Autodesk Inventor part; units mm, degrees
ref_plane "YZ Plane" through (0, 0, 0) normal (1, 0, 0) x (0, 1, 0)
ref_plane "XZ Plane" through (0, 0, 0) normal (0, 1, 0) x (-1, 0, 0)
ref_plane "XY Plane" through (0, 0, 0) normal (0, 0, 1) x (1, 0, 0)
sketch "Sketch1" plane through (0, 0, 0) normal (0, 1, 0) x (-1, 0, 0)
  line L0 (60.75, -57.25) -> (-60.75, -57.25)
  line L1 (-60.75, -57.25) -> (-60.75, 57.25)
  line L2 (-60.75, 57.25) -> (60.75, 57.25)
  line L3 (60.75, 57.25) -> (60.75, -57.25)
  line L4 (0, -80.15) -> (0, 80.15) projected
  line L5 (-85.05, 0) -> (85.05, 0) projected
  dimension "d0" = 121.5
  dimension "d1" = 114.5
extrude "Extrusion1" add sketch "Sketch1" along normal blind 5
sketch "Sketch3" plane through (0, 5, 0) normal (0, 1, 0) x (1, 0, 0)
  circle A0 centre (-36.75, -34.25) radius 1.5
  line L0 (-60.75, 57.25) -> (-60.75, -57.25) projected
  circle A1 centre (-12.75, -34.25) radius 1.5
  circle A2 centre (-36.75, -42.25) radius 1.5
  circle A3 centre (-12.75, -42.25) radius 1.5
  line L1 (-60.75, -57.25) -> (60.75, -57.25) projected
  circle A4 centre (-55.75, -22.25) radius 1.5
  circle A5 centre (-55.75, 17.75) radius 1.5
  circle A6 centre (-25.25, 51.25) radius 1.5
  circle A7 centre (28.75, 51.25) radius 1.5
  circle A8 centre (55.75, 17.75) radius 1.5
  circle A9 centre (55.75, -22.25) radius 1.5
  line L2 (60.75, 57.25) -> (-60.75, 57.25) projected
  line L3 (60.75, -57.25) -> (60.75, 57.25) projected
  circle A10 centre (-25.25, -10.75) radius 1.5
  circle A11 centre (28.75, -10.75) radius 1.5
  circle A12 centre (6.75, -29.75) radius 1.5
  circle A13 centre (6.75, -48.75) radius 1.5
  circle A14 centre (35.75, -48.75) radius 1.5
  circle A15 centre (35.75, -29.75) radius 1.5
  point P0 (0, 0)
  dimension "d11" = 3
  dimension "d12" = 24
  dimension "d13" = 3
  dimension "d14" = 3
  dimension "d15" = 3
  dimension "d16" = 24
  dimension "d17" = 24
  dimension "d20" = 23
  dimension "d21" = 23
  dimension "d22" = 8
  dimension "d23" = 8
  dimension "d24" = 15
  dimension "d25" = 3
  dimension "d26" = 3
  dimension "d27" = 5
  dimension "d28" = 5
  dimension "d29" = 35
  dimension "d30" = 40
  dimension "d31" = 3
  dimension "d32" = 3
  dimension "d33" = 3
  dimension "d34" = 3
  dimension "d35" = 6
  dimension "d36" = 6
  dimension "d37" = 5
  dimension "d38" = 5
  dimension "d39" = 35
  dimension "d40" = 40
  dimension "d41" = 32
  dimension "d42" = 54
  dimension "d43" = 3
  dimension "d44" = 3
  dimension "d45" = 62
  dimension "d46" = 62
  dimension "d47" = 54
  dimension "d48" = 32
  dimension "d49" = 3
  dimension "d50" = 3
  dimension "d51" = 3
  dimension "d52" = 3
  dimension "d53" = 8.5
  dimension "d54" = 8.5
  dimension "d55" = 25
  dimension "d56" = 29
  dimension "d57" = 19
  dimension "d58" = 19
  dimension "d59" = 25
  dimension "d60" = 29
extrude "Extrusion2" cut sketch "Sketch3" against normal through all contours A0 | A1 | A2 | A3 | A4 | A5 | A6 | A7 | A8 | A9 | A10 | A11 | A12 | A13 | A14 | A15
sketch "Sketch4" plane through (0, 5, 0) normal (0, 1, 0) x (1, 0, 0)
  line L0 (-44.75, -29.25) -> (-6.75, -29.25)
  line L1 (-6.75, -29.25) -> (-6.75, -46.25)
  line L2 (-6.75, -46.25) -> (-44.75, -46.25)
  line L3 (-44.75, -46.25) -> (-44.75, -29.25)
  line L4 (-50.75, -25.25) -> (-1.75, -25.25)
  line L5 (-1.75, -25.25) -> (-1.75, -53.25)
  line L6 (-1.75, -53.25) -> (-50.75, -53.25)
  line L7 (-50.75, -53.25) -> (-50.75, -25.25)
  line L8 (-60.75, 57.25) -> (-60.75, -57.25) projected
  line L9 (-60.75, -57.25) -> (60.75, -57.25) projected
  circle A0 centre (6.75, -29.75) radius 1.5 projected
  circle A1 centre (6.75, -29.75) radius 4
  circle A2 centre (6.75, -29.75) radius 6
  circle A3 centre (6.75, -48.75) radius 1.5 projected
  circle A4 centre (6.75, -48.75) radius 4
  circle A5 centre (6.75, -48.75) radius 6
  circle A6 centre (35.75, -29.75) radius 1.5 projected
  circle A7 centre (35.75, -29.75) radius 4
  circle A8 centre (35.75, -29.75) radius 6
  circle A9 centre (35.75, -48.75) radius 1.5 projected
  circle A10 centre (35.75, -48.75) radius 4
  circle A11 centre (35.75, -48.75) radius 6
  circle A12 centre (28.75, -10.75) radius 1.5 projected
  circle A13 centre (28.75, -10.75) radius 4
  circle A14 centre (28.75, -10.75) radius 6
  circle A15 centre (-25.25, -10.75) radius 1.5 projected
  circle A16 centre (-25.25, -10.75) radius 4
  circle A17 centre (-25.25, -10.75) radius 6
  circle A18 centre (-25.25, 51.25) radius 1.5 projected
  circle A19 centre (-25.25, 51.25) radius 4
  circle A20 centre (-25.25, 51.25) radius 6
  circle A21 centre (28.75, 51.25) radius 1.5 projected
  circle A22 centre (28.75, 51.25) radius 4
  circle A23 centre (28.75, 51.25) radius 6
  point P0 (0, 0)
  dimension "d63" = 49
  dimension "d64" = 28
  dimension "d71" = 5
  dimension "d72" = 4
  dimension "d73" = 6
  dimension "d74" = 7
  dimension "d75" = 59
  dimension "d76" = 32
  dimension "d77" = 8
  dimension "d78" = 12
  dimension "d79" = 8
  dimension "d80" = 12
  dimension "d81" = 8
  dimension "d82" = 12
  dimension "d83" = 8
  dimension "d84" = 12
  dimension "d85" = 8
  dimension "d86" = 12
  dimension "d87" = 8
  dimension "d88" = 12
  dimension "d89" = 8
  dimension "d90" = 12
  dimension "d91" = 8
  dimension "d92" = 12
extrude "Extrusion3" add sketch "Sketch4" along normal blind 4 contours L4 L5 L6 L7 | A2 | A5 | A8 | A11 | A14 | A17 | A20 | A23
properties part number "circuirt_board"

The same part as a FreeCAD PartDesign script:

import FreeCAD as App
import Part
import Sketcher
from FreeCAD import Vector

doc = App.newDocument("Part")
body = doc.addObject("PartDesign::Body", "Body")

# Sketch on XZ plane
sketch1 = doc.addObject("Sketcher::SketchObject", "Sketch")
body.addObject(sketch1)
sketch1.AttachmentSupport = (doc.XZ_Plane, [""])
sketch1.MapMode = "FlatFace"
sketch1.addGeometry([
    Part.LineSegment(Vector(-60.75, -57.25, 0), Vector(-60.75, 57.25, 0)),
    Part.LineSegment(Vector(-60.75, 57.25, 0), Vector(60.75, 57.25, 0)),
    Part.LineSegment(Vector(60.75, 57.25, 0), Vector(60.75, -57.25, 0)),
    Part.LineSegment(Vector(60.75, -57.25, 0), Vector(-60.75, -57.25, 0)),
], False)
sketch1.addConstraint([
    Sketcher.Constraint("Coincident", 0, 2, 1, 1),
    Sketcher.Constraint("Coincident", 1, 2, 2, 1),
    Sketcher.Constraint("Coincident", 2, 2, 3, 1),
    Sketcher.Constraint("Coincident", 3, 2, 0, 1),
    Sketcher.Constraint("Vertical", 0),
    Sketcher.Constraint("Horizontal", 1),
    Sketcher.Constraint("Vertical", 2),
    Sketcher.Constraint("Horizontal", 3),
    Sketcher.Constraint("Symmetric", 0, 2, 2, 2, -1, 1),
    Sketcher.Constraint("DistanceX", 1, 1, 1, 2, 121.5),
    Sketcher.Constraint("DistanceY", 0, 1, 0, 2, 114.5),
])
pad1 = doc.addObject("PartDesign::Pad", "Pad")
body.addObject(pad1)
pad1.Profile = sketch1
pad1.Length = 5
pad1.Reversed = True

# Sketch on XZ plane
sketch2 = doc.addObject("Sketcher::SketchObject", "Sketch001")
body.addObject(sketch2)
sketch2.AttachmentSupport = (doc.XZ_Plane, [""])
sketch2.MapMode = "FlatFace"
sketch2.AttachmentOffset = App.Placement(Vector(0, 0, -5), App.Rotation())
sketch2.addGeometry([
    Part.Circle(Vector(-36.75, 34.25, 0), Vector(0, 0, 1), 1.5),  # 0
    Part.Circle(Vector(-12.75, 34.25, 0), Vector(0, 0, 1), 1.5),  # 1
    Part.Circle(Vector(-36.75, 42.25, 0), Vector(0, 0, 1), 1.5),  # 2
    Part.Circle(Vector(-12.75, 42.25, 0), Vector(0, 0, 1), 1.5),  # 3
    Part.Circle(Vector(-55.75, 22.25, 0), Vector(0, 0, 1), 1.5),  # 4
    Part.Circle(Vector(-55.75, -17.75, 0), Vector(0, 0, 1), 1.5),  # 5
    Part.Circle(Vector(-25.25, -51.25, 0), Vector(0, 0, 1), 1.5),  # 6
    Part.Circle(Vector(28.75, -51.25, 0), Vector(0, 0, 1), 1.5),  # 7
    Part.Circle(Vector(55.75, -17.75, 0), Vector(0, 0, 1), 1.5),  # 8
    Part.Circle(Vector(55.75, 22.25, 0), Vector(0, 0, 1), 1.5),  # 9
    Part.Circle(Vector(-25.25, 10.75, 0), Vector(0, 0, 1), 1.5),  # 10
    Part.Circle(Vector(28.75, 10.75, 0), Vector(0, 0, 1), 1.5),  # 11
    Part.Circle(Vector(6.75, 29.75, 0), Vector(0, 0, 1), 1.5),  # 12
    Part.Circle(Vector(6.75, 48.75, 0), Vector(0, 0, 1), 1.5),  # 13
    Part.Circle(Vector(35.75, 48.75, 0), Vector(0, 0, 1), 1.5),  # 14
    Part.Circle(Vector(35.75, 29.75, 0), Vector(0, 0, 1), 1.5),  # 15
], False)
sketch2.addConstraint([
    Sketcher.Constraint("Equal", 0, 1),
    Sketcher.Constraint("Equal", 1, 2),
    Sketcher.Constraint("Equal", 2, 3),
    Sketcher.Constraint("Equal", 3, 4),
    Sketcher.Constraint("Equal", 4, 5),
    Sketcher.Constraint("Equal", 5, 6),
    Sketcher.Constraint("Equal", 6, 7),
    Sketcher.Constraint("Equal", 7, 8),
    Sketcher.Constraint("Equal", 8, 9),
    Sketcher.Constraint("Equal", 9, 10),
    Sketcher.Constraint("Equal", 10, 11),
    Sketcher.Constraint("Equal", 11, 12),
    Sketcher.Constraint("Equal", 12, 13),
    Sketcher.Constraint("Equal", 13, 14),
    Sketcher.Constraint("Equal", 14, 15),
    Sketcher.Constraint("Symmetric", 5, 3, 8, 3, -2),
    Sketcher.Constraint("Symmetric", 4, 3, 9, 3, -2),
    Sketcher.Constraint("Horizontal", 0, 3, 1, 3),
    Sketcher.Constraint("Horizontal", 2, 3, 3, 3),
    Sketcher.Constraint("Horizontal", 6, 3, 7, 3),
    Sketcher.Constraint("Horizontal", 10, 3, 11, 3),
    Sketcher.Constraint("Horizontal", 13, 3, 14, 3),
    Sketcher.Constraint("Horizontal", 12, 3, 15, 3),
    Sketcher.Constraint("Vertical", 0, 3, 2, 3),
    Sketcher.Constraint("Vertical", 1, 3, 3, 3),
    Sketcher.Constraint("Vertical", 4, 3, 5, 3),
    Sketcher.Constraint("Vertical", 6, 3, 10, 3),
    Sketcher.Constraint("Vertical", 7, 3, 11, 3),
    Sketcher.Constraint("Vertical", 12, 3, 13, 3),
    Sketcher.Constraint("Vertical", 14, 3, 15, 3),
    Sketcher.Constraint("Diameter", 0, 3.0),
    Sketcher.Constraint("DistanceX", 0, 3, 1, 3, 24.0),
    Sketcher.Constraint("DistanceY", 0, 3, 2, 3, 8.0),
    Sketcher.Constraint("DistanceX", 4, 3, 0, 3, 19.0),
    Sketcher.Constraint("DistanceY", 5, 3, 4, 3, 40.0),
    Sketcher.Constraint("DistanceX", 6, 3, 7, 3, 54.0),
    Sketcher.Constraint("DistanceY", 11, 3, 12, 3, 19.0),
    Sketcher.Constraint("DistanceX", 10, 3, 12, 3, 32.0),
    Sketcher.Constraint("DistanceY", 12, 3, 13, 3, 19.0),
    Sketcher.Constraint("DistanceX", 13, 3, 14, 3, 29.0),
    Sketcher.Constraint("DistanceY", 4, 3, 0, 3, 12.0),
    Sketcher.Constraint("DistanceX", 7, 3, 8, 3, 27.0),
    Sketcher.Constraint("DistanceX", 5, 3, 6, 3, 30.5),
    Sketcher.Constraint("DistanceY", 6, 3, 5, 3, 33.5),
    Sketcher.Constraint("DistanceY", 10, 3, 0, 3, 23.5),
    Sketcher.Constraint("DistanceY", -1, 1, 0, 3, 34.25),
])
pocket1 = doc.addObject("PartDesign::Pocket", "Pocket")
body.addObject(pocket1)
pocket1.Profile = sketch2
pocket1.Type = "ThroughAll"
pocket1.Reversed = True

# Sketch on XZ plane
sketch3 = doc.addObject("Sketcher::SketchObject", "Sketch002")
body.addObject(sketch3)
sketch3.AttachmentSupport = (doc.XZ_Plane, [""])
sketch3.MapMode = "FlatFace"
sketch3.AttachmentOffset = App.Placement(Vector(0, 0, -5), App.Rotation())
sketch3.addGeometry([
    Part.LineSegment(Vector(-1.75, 25.25, 0), Vector(-50.75, 25.25, 0)),  # 0
    Part.LineSegment(Vector(-50.75, 25.25, 0), Vector(-50.75, 53.25, 0)),  # 1
    Part.LineSegment(Vector(-50.75, 53.25, 0), Vector(-1.75, 53.25, 0)),  # 2
    Part.LineSegment(Vector(-1.75, 53.25, 0), Vector(-1.75, 25.25, 0)),  # 3
    Part.LineSegment(Vector(-44.75, 46.25, 0), Vector(-44.75, 29.25, 0)),  # 4
    Part.LineSegment(Vector(-44.75, 29.25, 0), Vector(-6.75, 29.25, 0)),  # 5
    Part.LineSegment(Vector(-6.75, 29.25, 0), Vector(-6.75, 46.25, 0)),  # 6
    Part.LineSegment(Vector(-6.75, 46.25, 0), Vector(-44.75, 46.25, 0)),  # 7
    Part.Circle(Vector(6.75, 29.75, 0), Vector(0, 0, 1), 6),  # 8
    Part.Circle(Vector(6.75, 29.75, 0), Vector(0, 0, 1), 4),  # 9
    Part.Circle(Vector(6.75, 48.75, 0), Vector(0, 0, 1), 6),  # 10
    Part.Circle(Vector(6.75, 48.75, 0), Vector(0, 0, 1), 4),  # 11
    Part.Circle(Vector(35.75, 29.75, 0), Vector(0, 0, 1), 6),  # 12
    Part.Circle(Vector(35.75, 29.75, 0), Vector(0, 0, 1), 4),  # 13
    Part.Circle(Vector(35.75, 48.75, 0), Vector(0, 0, 1), 6),  # 14
    Part.Circle(Vector(35.75, 48.75, 0), Vector(0, 0, 1), 4),  # 15
    Part.Circle(Vector(28.75, 10.75, 0), Vector(0, 0, 1), 6),  # 16
    Part.Circle(Vector(28.75, 10.75, 0), Vector(0, 0, 1), 4),  # 17
    Part.Circle(Vector(-25.25, 10.75, 0), Vector(0, 0, 1), 6),  # 18
    Part.Circle(Vector(-25.25, 10.75, 0), Vector(0, 0, 1), 4),  # 19
    Part.Circle(Vector(-25.25, -51.25, 0), Vector(0, 0, 1), 6),  # 20
    Part.Circle(Vector(-25.25, -51.25, 0), Vector(0, 0, 1), 4),  # 21
    Part.Circle(Vector(28.75, -51.25, 0), Vector(0, 0, 1), 6),  # 22
    Part.Circle(Vector(28.75, -51.25, 0), Vector(0, 0, 1), 4),  # 23
], False)
sketch3.addConstraint([
    Sketcher.Constraint("Coincident", 0, 2, 1, 1),
    Sketcher.Constraint("Coincident", 1, 2, 2, 1),
    Sketcher.Constraint("Coincident", 2, 2, 3, 1),
    Sketcher.Constraint("Coincident", 3, 2, 0, 1),
    Sketcher.Constraint("Coincident", 4, 2, 5, 1),
    Sketcher.Constraint("Coincident", 5, 2, 6, 1),
    Sketcher.Constraint("Coincident", 6, 2, 7, 1),
    Sketcher.Constraint("Coincident", 7, 2, 4, 1),
    Sketcher.Constraint("Horizontal", 0),
    Sketcher.Constraint("Vertical", 1),
    Sketcher.Constraint("Horizontal", 2),
    Sketcher.Constraint("Vertical", 3),
    Sketcher.Constraint("Vertical", 4),
    Sketcher.Constraint("Horizontal", 5),
    Sketcher.Constraint("Vertical", 6),
    Sketcher.Constraint("Horizontal", 7),
    Sketcher.Constraint("Coincident", 9, 3, 8, 3),
    Sketcher.Constraint("Coincident", 11, 3, 10, 3),
    Sketcher.Constraint("Coincident", 13, 3, 12, 3),
    Sketcher.Constraint("Coincident", 15, 3, 14, 3),
    Sketcher.Constraint("Coincident", 17, 3, 16, 3),
    Sketcher.Constraint("Coincident", 19, 3, 18, 3),
    Sketcher.Constraint("Coincident", 21, 3, 20, 3),
    Sketcher.Constraint("Coincident", 23, 3, 22, 3),
    Sketcher.Constraint("Equal", 8, 10),
    Sketcher.Constraint("Equal", 9, 11),
    Sketcher.Constraint("Equal", 10, 12),
    Sketcher.Constraint("Equal", 11, 13),
    Sketcher.Constraint("Equal", 12, 14),
    Sketcher.Constraint("Equal", 13, 15),
    Sketcher.Constraint("Equal", 14, 16),
    Sketcher.Constraint("Equal", 15, 17),
    Sketcher.Constraint("Equal", 16, 18),
    Sketcher.Constraint("Equal", 17, 19),
    Sketcher.Constraint("Equal", 18, 20),
    Sketcher.Constraint("Equal", 19, 21),
    Sketcher.Constraint("Equal", 20, 22),
    Sketcher.Constraint("Equal", 21, 23),
    Sketcher.Constraint("Horizontal", 9, 3, 12, 3),
    Sketcher.Constraint("Horizontal", 11, 3, 14, 3),
    Sketcher.Constraint("Horizontal", 17, 3, 18, 3),
    Sketcher.Constraint("Horizontal", 21, 3, 22, 3),
    Sketcher.Constraint("Vertical", 9, 3, 10, 3),
    Sketcher.Constraint("Vertical", 13, 3, 14, 3),
    Sketcher.Constraint("Vertical", 19, 3, 20, 3),
    Sketcher.Constraint("Vertical", 17, 3, 22, 3),
    Sketcher.Constraint("Diameter", 8, 12.0),
    Sketcher.Constraint("Diameter", 9, 8.0),
    Sketcher.Constraint("DistanceX", 0, 2, 0, 1, 49.0),
    Sketcher.Constraint("DistanceY", 1, 1, 1, 2, 28.0),
    Sketcher.Constraint("DistanceX", 16, 3, 12, 3, 7.0),
    Sketcher.Constraint("DistanceX", 18, 3, 8, 3, 32.0),
    Sketcher.Constraint("DistanceX", 0, 2, 4, 2, 6.0),
    Sketcher.Constraint("DistanceY", 0, 2, 4, 2, 4.0),
    Sketcher.Constraint("DistanceX", 5, 2, 3, 2, 5.0),
    Sketcher.Constraint("DistanceY", 6, 2, 2, 2, 7.0),
    Sketcher.Constraint("DistanceY", 8, 3, 10, 3, 19.0),
    Sketcher.Constraint("DistanceX", 8, 3, 12, 3, 29.0),
    Sketcher.Constraint("DistanceY", 16, 3, 12, 3, 19.0),
    Sketcher.Constraint("DistanceY", 20, 3, 18, 3, 62.0),
    Sketcher.Constraint("DistanceX", 0, 2, 18, 3, 25.5),
    Sketcher.Constraint("DistanceY", 18, 3, 0, 2, 14.5),
    Sketcher.Constraint("DistanceX", -1, 1, 8, 3, 6.75),
    Sketcher.Constraint("DistanceY", -1, 1, 8, 3, 29.75),
])
pad2 = doc.addObject("PartDesign::Pad", "Pad001")
body.addObject(pad2)
pad2.Profile = sketch3
pad2.Length = 4
pad2.Reversed = True

doc.recompute()
